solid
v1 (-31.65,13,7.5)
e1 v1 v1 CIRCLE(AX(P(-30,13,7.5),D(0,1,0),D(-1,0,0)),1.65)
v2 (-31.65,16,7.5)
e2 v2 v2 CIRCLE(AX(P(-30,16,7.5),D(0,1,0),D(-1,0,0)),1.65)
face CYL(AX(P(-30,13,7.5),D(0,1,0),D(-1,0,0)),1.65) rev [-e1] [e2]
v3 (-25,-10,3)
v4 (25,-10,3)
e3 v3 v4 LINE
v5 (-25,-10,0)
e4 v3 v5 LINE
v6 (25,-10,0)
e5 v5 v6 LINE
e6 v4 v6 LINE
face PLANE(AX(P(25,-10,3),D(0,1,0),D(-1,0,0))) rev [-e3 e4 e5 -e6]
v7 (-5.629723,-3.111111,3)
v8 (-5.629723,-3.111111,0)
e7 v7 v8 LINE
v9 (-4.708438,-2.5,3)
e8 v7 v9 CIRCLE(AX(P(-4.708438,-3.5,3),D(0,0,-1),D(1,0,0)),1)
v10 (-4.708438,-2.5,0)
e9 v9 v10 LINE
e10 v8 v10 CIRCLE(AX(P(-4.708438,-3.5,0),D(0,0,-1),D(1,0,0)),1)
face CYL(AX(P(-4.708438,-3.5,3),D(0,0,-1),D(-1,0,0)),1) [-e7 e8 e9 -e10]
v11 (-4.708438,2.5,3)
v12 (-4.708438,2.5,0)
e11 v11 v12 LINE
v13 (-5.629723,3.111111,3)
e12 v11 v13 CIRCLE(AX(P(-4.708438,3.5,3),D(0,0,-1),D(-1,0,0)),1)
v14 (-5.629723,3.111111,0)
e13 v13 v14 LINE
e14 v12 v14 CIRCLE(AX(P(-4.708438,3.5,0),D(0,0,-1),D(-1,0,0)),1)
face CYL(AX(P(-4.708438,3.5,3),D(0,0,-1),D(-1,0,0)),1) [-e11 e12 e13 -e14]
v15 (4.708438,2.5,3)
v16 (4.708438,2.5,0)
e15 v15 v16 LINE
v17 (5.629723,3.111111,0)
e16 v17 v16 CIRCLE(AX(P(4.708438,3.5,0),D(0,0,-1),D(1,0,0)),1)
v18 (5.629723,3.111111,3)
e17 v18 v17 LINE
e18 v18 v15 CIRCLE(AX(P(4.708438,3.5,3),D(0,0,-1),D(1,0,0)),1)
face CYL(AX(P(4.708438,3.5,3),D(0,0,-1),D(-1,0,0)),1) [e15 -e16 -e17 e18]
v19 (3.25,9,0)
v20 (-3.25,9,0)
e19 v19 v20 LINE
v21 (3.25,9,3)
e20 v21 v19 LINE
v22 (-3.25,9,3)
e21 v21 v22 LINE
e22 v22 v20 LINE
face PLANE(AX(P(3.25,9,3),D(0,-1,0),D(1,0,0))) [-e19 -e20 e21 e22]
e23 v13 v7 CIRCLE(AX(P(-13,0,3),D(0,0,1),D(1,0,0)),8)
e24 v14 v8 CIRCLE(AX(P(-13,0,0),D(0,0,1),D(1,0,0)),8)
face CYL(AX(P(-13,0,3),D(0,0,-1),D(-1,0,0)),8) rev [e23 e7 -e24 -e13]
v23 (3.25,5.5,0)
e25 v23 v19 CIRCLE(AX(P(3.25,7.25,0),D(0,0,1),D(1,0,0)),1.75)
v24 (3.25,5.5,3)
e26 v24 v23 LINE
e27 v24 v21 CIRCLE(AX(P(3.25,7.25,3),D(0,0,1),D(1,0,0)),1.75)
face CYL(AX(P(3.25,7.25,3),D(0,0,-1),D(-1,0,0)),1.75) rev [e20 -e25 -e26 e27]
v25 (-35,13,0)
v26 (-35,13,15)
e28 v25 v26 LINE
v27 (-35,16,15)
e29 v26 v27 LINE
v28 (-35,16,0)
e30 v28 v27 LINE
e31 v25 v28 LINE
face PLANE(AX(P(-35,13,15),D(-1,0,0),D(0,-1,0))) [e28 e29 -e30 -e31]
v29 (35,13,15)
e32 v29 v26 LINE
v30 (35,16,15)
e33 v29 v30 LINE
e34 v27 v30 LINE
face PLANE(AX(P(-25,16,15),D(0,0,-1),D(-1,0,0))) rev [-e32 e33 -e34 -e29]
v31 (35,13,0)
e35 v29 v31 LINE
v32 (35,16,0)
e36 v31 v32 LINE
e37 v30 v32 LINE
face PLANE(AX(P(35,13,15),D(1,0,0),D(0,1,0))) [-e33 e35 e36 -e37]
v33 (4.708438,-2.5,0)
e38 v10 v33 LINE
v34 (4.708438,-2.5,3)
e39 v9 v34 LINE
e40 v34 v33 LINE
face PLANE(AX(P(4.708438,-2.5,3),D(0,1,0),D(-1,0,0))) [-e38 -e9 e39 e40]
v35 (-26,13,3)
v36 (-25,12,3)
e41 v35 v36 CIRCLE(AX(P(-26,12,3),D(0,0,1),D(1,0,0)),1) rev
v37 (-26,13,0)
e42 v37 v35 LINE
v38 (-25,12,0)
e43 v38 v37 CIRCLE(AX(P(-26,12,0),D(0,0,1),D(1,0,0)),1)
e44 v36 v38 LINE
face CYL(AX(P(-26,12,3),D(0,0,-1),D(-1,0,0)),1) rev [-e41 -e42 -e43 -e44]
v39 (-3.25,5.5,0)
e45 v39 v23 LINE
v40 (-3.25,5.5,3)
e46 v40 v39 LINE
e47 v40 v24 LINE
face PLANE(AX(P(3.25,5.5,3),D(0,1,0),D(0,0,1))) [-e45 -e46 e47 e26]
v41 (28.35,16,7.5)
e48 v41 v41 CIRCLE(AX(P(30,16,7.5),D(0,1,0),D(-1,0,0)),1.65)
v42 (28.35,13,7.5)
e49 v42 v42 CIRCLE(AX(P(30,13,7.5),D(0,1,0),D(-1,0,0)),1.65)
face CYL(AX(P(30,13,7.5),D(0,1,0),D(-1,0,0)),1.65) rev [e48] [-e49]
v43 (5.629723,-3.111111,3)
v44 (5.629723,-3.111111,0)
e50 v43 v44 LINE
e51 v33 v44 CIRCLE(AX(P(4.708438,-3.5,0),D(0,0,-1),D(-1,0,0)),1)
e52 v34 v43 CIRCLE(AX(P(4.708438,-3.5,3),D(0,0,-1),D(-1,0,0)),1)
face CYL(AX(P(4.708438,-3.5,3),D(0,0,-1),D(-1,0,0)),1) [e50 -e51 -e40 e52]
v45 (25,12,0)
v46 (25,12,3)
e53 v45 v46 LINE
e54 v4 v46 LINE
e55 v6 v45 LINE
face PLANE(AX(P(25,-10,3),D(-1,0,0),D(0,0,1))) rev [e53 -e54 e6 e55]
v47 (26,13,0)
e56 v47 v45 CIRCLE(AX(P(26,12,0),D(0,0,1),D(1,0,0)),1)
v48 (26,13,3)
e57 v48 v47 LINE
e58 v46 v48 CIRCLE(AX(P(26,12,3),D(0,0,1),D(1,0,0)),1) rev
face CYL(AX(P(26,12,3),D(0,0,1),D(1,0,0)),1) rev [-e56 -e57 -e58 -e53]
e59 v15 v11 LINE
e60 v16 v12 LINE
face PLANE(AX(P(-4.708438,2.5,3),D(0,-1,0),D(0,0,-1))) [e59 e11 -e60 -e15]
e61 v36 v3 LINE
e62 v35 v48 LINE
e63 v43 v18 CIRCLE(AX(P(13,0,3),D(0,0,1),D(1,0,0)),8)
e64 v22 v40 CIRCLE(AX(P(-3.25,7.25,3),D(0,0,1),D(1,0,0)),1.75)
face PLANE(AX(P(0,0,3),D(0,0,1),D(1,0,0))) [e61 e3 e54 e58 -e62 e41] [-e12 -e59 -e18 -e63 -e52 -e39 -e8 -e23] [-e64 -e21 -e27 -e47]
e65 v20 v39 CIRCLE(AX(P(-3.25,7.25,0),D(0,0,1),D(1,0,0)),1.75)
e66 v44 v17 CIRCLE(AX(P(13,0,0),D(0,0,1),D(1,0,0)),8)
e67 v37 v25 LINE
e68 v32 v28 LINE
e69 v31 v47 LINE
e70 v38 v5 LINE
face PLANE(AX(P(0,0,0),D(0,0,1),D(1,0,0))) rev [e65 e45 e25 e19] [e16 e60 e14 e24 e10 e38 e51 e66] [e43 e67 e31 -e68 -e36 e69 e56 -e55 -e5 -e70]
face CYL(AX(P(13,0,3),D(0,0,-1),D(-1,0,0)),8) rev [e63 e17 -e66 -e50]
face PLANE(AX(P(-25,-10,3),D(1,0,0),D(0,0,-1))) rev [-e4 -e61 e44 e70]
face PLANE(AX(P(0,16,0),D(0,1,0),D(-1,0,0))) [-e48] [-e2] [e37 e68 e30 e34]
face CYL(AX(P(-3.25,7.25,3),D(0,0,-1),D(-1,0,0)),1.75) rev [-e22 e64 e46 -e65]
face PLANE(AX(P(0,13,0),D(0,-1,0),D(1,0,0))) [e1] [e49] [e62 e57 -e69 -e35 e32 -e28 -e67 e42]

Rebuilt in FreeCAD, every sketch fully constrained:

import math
import FreeCAD as App
import Part
import Sketcher
Q = App.Units.Quantity


def edges_at(feature, points):
    """Names of the edges that pass closest to the given points."""
    edges = feature.Shape.Edges
    near = lambda p: min(range(len(edges)), key=lambda i: edges[i].distToShape(Part.Vertex(*p))[0])
    return sorted({f"Edge{near(p) + 1}" for p in points})

doc = App.newDocument("Part")
params = doc.addObject("Spreadsheet::Sheet", "Params")
for row, (alias, value) in enumerate([
    ("sketch1_radius", "1 mm"),
    ("sketch1_radius2", "8 mm"),
    ("sketch1_width", "50 mm"),
    ("sketch1_height", "20 mm"),
    ("sketch1_radius3", "1.75 mm"),
    ("pad1_length", "3 mm"),
    ("sketch2_width", "50 mm"),
    ("sketch2_height", "15 mm"),
    ("pad2_length", "6 mm"),
    ("sketch3_width", "50 mm"),
    ("sketch3_height", "12 mm"),
    ("pocket1_length", "3 mm"),
    ("sketch4_diameter", "3.3 mm"),
    ("sketch4_width", "10 mm"),
    ("sketch4_height", "15 mm"),
    ("pad3_length", "3 mm"),
    ("fillet_radius", "1 mm"),
], start=1):
    params.set(f"A{row}", alias)
    params.set(f"B{row}", "=" + value)
    params.setAlias(f"B{row}", alias)

body = doc.addObject("PartDesign::Body", "Body")

# Sketch on XY plane
sketch1 = body.newObject("Sketcher::SketchObject", "Sketch")
sketch1.AttachmentSupport = (doc.getObject("XY_Plane"), [""])
sketch1.MapMode = "FlatFace"
sketch1.addGeometry([
    Part.LineSegment(App.Vector(-25, 10, 0), App.Vector(-25, -10, 0)),  # 0
    Part.LineSegment(App.Vector(-25, -10, 0), App.Vector(25, -10, 0)),  # 1
    Part.LineSegment(App.Vector(25, -10, 0), App.Vector(25, 10, 0)),  # 2
    Part.LineSegment(App.Vector(25, 10, 0), App.Vector(-25, 10, 0)),  # 3
    Part.ArcOfCircle(Part.Circle(App.Vector(-4.708438, 3.5, 0), App.Vector(0, 0, 1), 1), math.radians(-157.11462), math.radians(-90)),  # 4
    Part.LineSegment(App.Vector(-4.708438, 2.5, 0), App.Vector(4.708438, 2.5, 0)),  # 5
    Part.ArcOfCircle(Part.Circle(App.Vector(4.708438, 3.5, 0), App.Vector(0, 0, 1), 1), math.radians(-90), math.radians(-22.88538)),  # 6
    Part.ArcOfCircle(Part.Circle(App.Vector(13, 0, 0), App.Vector(0, 0, 1), 8), math.radians(-157.11462), math.radians(157.11462)),  # 7
    Part.ArcOfCircle(Part.Circle(App.Vector(4.708438, -3.5, 0), App.Vector(0, 0, 1), 1), math.radians(22.88538), math.radians(90)),  # 8
    Part.LineSegment(App.Vector(4.708438, -2.5, 0), App.Vector(-4.708438, -2.5, 0)),  # 9
    Part.ArcOfCircle(Part.Circle(App.Vector(-4.708438, -3.5, 0), App.Vector(0, 0, 1), 1), math.radians(90), math.radians(157.11462)),  # 10
    Part.ArcOfCircle(Part.Circle(App.Vector(-13, 0, 0), App.Vector(0, 0, 1), 8), math.radians(22.88538), math.radians(337.11462)),  # 11
    Part.ArcOfCircle(Part.Circle(App.Vector(3.25, 7.25, 0), App.Vector(0, 0, 1), 1.75), math.radians(-90), math.radians(90)),  # 12
    Part.LineSegment(App.Vector(3.25, 5.5, 0), App.Vector(-3.25, 5.5, 0)),  # 13
    Part.ArcOfCircle(Part.Circle(App.Vector(-3.25, 7.25, 0), App.Vector(0, 0, 1), 1.75), math.radians(90), math.radians(270)),  # 14
    Part.LineSegment(App.Vector(-3.25, 9, 0), App.Vector(3.25, 9, 0)),  # 15
], False)
sketch1.addConstraint([
    Sketcher.Constraint("Coincident", 0, 2, 1, 1),
    Sketcher.Constraint("Coincident", 1, 2, 2, 1),
    Sketcher.Constraint("Coincident", 2, 2, 3, 1),
    Sketcher.Constraint("Coincident", 3, 2, 0, 1),
    Sketcher.Constraint("Tangent", 4, 2, 5, 1),
    Sketcher.Constraint("Tangent", 5, 2, 6, 1),
    Sketcher.Constraint("Tangent", 6, 2, 7, 2),
    Sketcher.Constraint("Tangent", 7, 1, 8, 1),
    Sketcher.Constraint("Tangent", 8, 2, 9, 1),
    Sketcher.Constraint("Tangent", 9, 2, 10, 1),
    Sketcher.Constraint("Tangent", 10, 2, 11, 2),
    Sketcher.Constraint("Tangent", 11, 1, 4, 1),
    Sketcher.Constraint("Tangent", 12, 1, 13, 1),
    Sketcher.Constraint("Tangent", 13, 2, 14, 2),
    Sketcher.Constraint("Tangent", 14, 1, 15, 1),
    Sketcher.Constraint("Tangent", 15, 2, 12, 2),
    Sketcher.Constraint("Vertical", 0),
    Sketcher.Constraint("Horizontal", 1),
    Sketcher.Constraint("Vertical", 2),
    Sketcher.Constraint("Horizontal", 3),
    Sketcher.Constraint("Horizontal", 5),
    Sketcher.Constraint("Horizontal", 9),
    Sketcher.Constraint("Horizontal", 13),
    Sketcher.Constraint("Horizontal", 15),
    Sketcher.Constraint("Equal", 4, 6),
    Sketcher.Constraint("Equal", 6, 8),
    Sketcher.Constraint("Equal", 8, 10),
    Sketcher.Constraint("Equal", 7, 11),
    Sketcher.Constraint("Symmetric", 4, 3, 8, 3, -1, 1),
    Sketcher.Constraint("Symmetric", 0, 2, 2, 2, -1, 1),
    Sketcher.Constraint("Symmetric", 7, 3, 11, 3, -2),
    Sketcher.Constraint("Radius", 4, Q("1 mm")),
    Sketcher.Constraint("Radius", 7, Q("8 mm")),
    Sketcher.Constraint("DistanceX", 1, 1, 1, 2, Q("50 mm")),
    Sketcher.Constraint("DistanceY", 0, 2, 0, 1, Q("20 mm")),
    Sketcher.Constraint("Radius", 12, Q("1.75 mm")),
    Sketcher.Constraint("DistanceX", 13, 2, 13, 1, Q("6.5 mm")),
    Sketcher.Constraint("DistanceX", -1, 1, 7, 3, Q("13 mm")),
    Sketcher.Constraint("DistanceY", -1, 1, 14, 1, Q("9 mm")),
    Sketcher.Constraint("DistanceY", 8, 3, 6, 3, Q("7 mm")),
    Sketcher.Constraint("DistanceX", -1, 1, 12, 3, Q("3.25 mm")),
])
sketch1.setExpression("Constraints[31]", "Params.sketch1_radius")
sketch1.setExpression("Constraints[32]", "Params.sketch1_radius2")
sketch1.setExpression("Constraints[33]", "Params.sketch1_width")
sketch1.setExpression("Constraints[34]", "Params.sketch1_height")
sketch1.setExpression("Constraints[35]", "Params.sketch1_radius3")
pad1 = body.newObject("PartDesign::Pad", "Pad")
pad1.Profile = sketch1
pad1.setExpression("Length", "Params.pad1_length")

# Sketch on XZ plane
sketch2 = body.newObject("Sketcher::SketchObject", "Sketch001")
sketch2.AttachmentSupport = (doc.getObject("XZ_Plane"), [""])
sketch2.MapMode = "FlatFace"
sketch2.AttachmentOffset = App.Placement(App.Vector(0, 0, -10), App.Rotation())
sketch2.addGeometry([
    Part.LineSegment(App.Vector(-25, 0, 0), App.Vector(-25, 15, 0)),
    Part.LineSegment(App.Vector(-25, 15, 0), App.Vector(25, 15, 0)),
    Part.LineSegment(App.Vector(25, 15, 0), App.Vector(25, 0, 0)),
    Part.LineSegment(App.Vector(25, 0, 0), App.Vector(-25, 0, 0)),
], False)
sketch2.addConstraint([
    Sketcher.Constraint("Coincident", 0, 2, 1, 1),
    Sketcher.Constraint("Coincident", 1, 2, 2, 1),
    Sketcher.Constraint("Coincident", 2, 2, 3, 1),
    Sketcher.Constraint("Coincident", 3, 2, 0, 1),
    Sketcher.Constraint("Vertical", 0),
    Sketcher.Constraint("Horizontal", 1),
    Sketcher.Constraint("Vertical", 2),
    Sketcher.Constraint("Horizontal", 3),
    Sketcher.Constraint("Symmetric", 2, 2, 3, 2, -1, 1),
    Sketcher.Constraint("DistanceX", 1, 1, 1, 2, Q("50 mm")),
    Sketcher.Constraint("DistanceY", 0, 1, 0, 2, Q("15 mm")),
])
sketch2.setExpression("Constraints[9]", "Params.sketch2_width")
sketch2.setExpression("Constraints[10]", "Params.sketch2_height")
pad2 = body.newObject("PartDesign::Pad", "Pad001")
pad2.Profile = sketch2
pad2.setExpression("Length", "Params.pad2_length")
pad2.Reversed = True

# Sketch on XZ plane
sketch3 = body.newObject("Sketcher::SketchObject", "Sketch002")
sketch3.AttachmentSupport = (doc.getObject("XZ_Plane"), [""])
sketch3.MapMode = "FlatFace"
sketch3.AttachmentOffset = App.Placement(App.Vector(0, 0, -10), App.Rotation())
sketch3.addGeometry([
    Part.LineSegment(App.Vector(-25, 15, 0), App.Vector(-25, 3, 0)),
    Part.LineSegment(App.Vector(-25, 3, 0), App.Vector(25, 3, 0)),
    Part.LineSegment(App.Vector(25, 3, 0), App.Vector(25, 15, 0)),
    Part.LineSegment(App.Vector(25, 15, 0), App.Vector(-25, 15, 0)),
], False)
sketch3.addConstraint([
    Sketcher.Constraint("Coincident", 0, 2, 1, 1),
    Sketcher.Constraint("Coincident", 1, 2, 2, 1),
    Sketcher.Constraint("Coincident", 2, 2, 3, 1),
    Sketcher.Constraint("Coincident", 3, 2, 0, 1),
    Sketcher.Constraint("Vertical", 0),
    Sketcher.Constraint("Horizontal", 1),
    Sketcher.Constraint("Vertical", 2),
    Sketcher.Constraint("Horizontal", 3),
    Sketcher.Constraint("DistanceX", 1, 1, 1, 2, Q("50 mm")),
    Sketcher.Constraint("DistanceY", 0, 2, 0, 1, Q("12 mm")),
    Sketcher.Constraint("DistanceX", 0, 2, -1, 1, Q("25 mm")),
    Sketcher.Constraint("DistanceY", -1, 1, 0, 2, Q("3 mm")),
])
sketch3.setExpression("Constraints[8]", "Params.sketch3_width")
sketch3.setExpression("Constraints[9]", "Params.sketch3_height")
pocket1 = body.newObject("PartDesign::Pocket", "Pocket")
pocket1.Profile = sketch3
pocket1.setExpression("Length", "Params.pocket1_length")

# Sketch on XZ plane
sketch4 = body.newObject("Sketcher::SketchObject", "Sketch003")
sketch4.AttachmentSupport = (doc.getObject("XZ_Plane"), [""])
sketch4.MapMode = "FlatFace"
sketch4.AttachmentOffset = App.Placement(App.Vector(0, 0, -16), App.Rotation())
sketch4.addGeometry([
    Part.LineSegment(App.Vector(25, 0, 0), App.Vector(25, 15, 0)),  # 0
    Part.LineSegment(App.Vector(25, 15, 0), App.Vector(35, 15, 0)),  # 1
    Part.LineSegment(App.Vector(35, 15, 0), App.Vector(35, 0, 0)),  # 2
    Part.LineSegment(App.Vector(35, 0, 0), App.Vector(25, 0, 0)),  # 3
    Part.Circle(App.Vector(30, 7.5, 0), App.Vector(0, 0, 1), 1.65),  # 4
    Part.LineSegment(App.Vector(-35, 0, 0), App.Vector(-35, 15, 0)),  # 5
    Part.LineSegment(App.Vector(-35, 15, 0), App.Vector(-25, 15, 0)),  # 6
    Part.LineSegment(App.Vector(-25, 15, 0), App.Vector(-25, 0, 0)),  # 7
    Part.LineSegment(App.Vector(-25, 0, 0), App.Vector(-35, 0, 0)),  # 8
    Part.Circle(App.Vector(-30, 7.5, 0), App.Vector(0, 0, 1), 1.65),  # 9
], False)
sketch4.addConstraint([
    Sketcher.Constraint("Coincident", 0, 2, 1, 1),
    Sketcher.Constraint("Coincident", 1, 2, 2, 1),
    Sketcher.Constraint("Coincident", 2, 2, 3, 1),
    Sketcher.Constraint("Coincident", 3, 2, 0, 1),
    Sketcher.Constraint("Coincident", 5, 2, 6, 1),
    Sketcher.Constraint("Coincident", 6, 2, 7, 1),
    Sketcher.Constraint("Coincident", 7, 2, 8, 1),
    Sketcher.Constraint("Coincident", 8, 2, 5, 1),
    Sketcher.Constraint("Vertical", 0),
    Sketcher.Constraint("Horizontal", 1),
    Sketcher.Constraint("Vertical", 2),
    Sketcher.Constraint("Horizontal", 3),
    Sketcher.Constraint("Vertical", 5),
    Sketcher.Constraint("Horizontal", 6),
    Sketcher.Constraint("Vertical", 7),
    Sketcher.Constraint("Horizontal", 8),
    Sketcher.Constraint("Equal", 4, 9),
    Sketcher.Constraint("Symmetric", 3, 2, 7, 2, -1, 1),
    Sketcher.Constraint("Symmetric", 4, 3, 9, 3, -2),
    Sketcher.Constraint("Symmetric", 1, 2, 5, 2, -2),
    Sketcher.Constraint("PointOnObject", 2, 2, -1),
    Sketcher.Constraint("Diameter", 4, Q("3.3 mm")),
    Sketcher.Constraint("DistanceX", 1, 1, 1, 2, Q("10 mm")),
    Sketcher.Constraint("DistanceY", 0, 1, 0, 2, Q("15 mm")),
    Sketcher.Constraint("DistanceX", -1, 1, 4, 3, Q("30 mm")),
    Sketcher.Constraint("DistanceX", -1, 1, 0, 2, Q("25 mm")),
    Sketcher.Constraint("DistanceY", -1, 1, 4, 3, Q("7.5 mm")),
])
sketch4.setExpression("Constraints[21]", "Params.sketch4_diameter")
sketch4.setExpression("Constraints[22]", "Params.sketch4_width")
sketch4.setExpression("Constraints[23]", "Params.sketch4_height")
pad3 = body.newObject("PartDesign::Pad", "Pad002")
pad3.Profile = sketch4
pad3.setExpression("Length", "Params.pad3_length")
doc.recompute()

fillet = body.newObject("PartDesign::Fillet", "Fillet")
fillet.Base = (pad3, edges_at(pad3, [(25, 13, 1.5), (-25, 13, 1.5)]))
fillet.setExpression("Radius", "Params.fillet_radius")

doc.recompute()
